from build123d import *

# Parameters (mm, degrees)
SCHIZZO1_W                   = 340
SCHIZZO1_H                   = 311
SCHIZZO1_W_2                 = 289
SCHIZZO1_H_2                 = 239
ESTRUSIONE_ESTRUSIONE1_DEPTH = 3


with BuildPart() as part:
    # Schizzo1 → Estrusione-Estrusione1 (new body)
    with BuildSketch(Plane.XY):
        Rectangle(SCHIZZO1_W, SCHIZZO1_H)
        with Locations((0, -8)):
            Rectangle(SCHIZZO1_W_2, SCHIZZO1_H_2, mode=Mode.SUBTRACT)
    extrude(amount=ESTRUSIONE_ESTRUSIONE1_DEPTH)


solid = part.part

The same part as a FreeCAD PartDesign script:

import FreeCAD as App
import Part
import Sketcher
from FreeCAD import Vector
Q = App.Units.Quantity

doc = App.newDocument("Part")
body = doc.addObject("PartDesign::Body", "Body")

sketch1 = body.newObject("Sketcher::SketchObject", "Sketch")
sketch1.AttachmentSupport = (doc.getObject("XY_Plane"), [""])
sketch1.MapMode = "FlatFace"
sketch1.addGeometry([
    Part.LineSegment(Vector(-170, 155.5, 0), Vector(-170, -155.5, 0)),
    Part.LineSegment(Vector(-170, -155.5, 0), Vector(170, -155.5, 0)),
    Part.LineSegment(Vector(170, -155.5, 0), Vector(170, 155.5, 0)),
    Part.LineSegment(Vector(170, 155.5, 0), Vector(-170, 155.5, 0)),
    Part.LineSegment(Vector(144.5, -127.5, 0), Vector(-144.5, -127.5, 0)),
    Part.LineSegment(Vector(-144.5, -127.5, 0), Vector(-144.5, 111.5, 0)),
    Part.LineSegment(Vector(-144.5, 111.5, 0), Vector(144.5, 111.5, 0)),
    Part.LineSegment(Vector(144.5, 111.5, 0), Vector(144.5, -127.5, 0)),
], False)
sketch1.addConstraint([
    Sketcher.Constraint("Coincident", 0, 2, 1, 1),
    Sketcher.Constraint("Coincident", 1, 2, 2, 1),
    Sketcher.Constraint("Coincident", 2, 2, 3, 1),
    Sketcher.Constraint("Coincident", 3, 2, 0, 1),
    Sketcher.Constraint("Coincident", 4, 2, 5, 1),
    Sketcher.Constraint("Coincident", 5, 2, 6, 1),
    Sketcher.Constraint("Coincident", 6, 2, 7, 1),
    Sketcher.Constraint("Coincident", 7, 2, 4, 1),
    Sketcher.Constraint("Vertical", 0),
    Sketcher.Constraint("Horizontal", 1),
    Sketcher.Constraint("Vertical", 2),
    Sketcher.Constraint("Horizontal", 3),
    Sketcher.Constraint("Horizontal", 4),
    Sketcher.Constraint("Vertical", 5),
    Sketcher.Constraint("Horizontal", 6),
    Sketcher.Constraint("Vertical", 7),
    Sketcher.Constraint("Symmetric", 0, 2, 2, 2, -1, 1),
    Sketcher.Constraint("DistanceX", 1, 1, 1, 2, Q("340 mm")),
    Sketcher.Constraint("DistanceX", 4, 2, 4, 1, Q("289 mm")),
    Sketcher.Constraint("DistanceY", 0, 2, 0, 1, Q("311 mm")),
    Sketcher.Constraint("DistanceY", 5, 1, 5, 2, Q("239 mm")),
    Sketcher.Constraint("DistanceY", 0, 2, 4, 2, Q("28 mm")),
    Sketcher.Constraint("DistanceX", 4, 2, -1, 1, Q("144.5 mm")),
])
pad1 = body.newObject("PartDesign::Pad", "Pad")
pad1.Profile = sketch1
pad1.Length = 3

doc.recompute()
